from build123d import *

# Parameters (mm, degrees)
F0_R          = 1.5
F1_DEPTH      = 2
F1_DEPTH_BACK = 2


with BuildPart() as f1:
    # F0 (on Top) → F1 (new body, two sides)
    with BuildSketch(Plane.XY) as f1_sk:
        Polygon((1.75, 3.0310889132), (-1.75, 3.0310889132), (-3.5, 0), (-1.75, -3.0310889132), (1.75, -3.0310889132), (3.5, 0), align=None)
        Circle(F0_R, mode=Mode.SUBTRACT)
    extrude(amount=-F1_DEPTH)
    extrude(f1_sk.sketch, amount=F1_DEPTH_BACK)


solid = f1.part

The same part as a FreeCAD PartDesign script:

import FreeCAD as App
import Part
import Sketcher
from FreeCAD import Vector
Q = App.Units.Quantity


def add_polygon(sketch, points):
    """Adds a closed chain of lines whose ends are joined by coincident constraints."""
    first, n = sketch.GeometryCount, len(points)
    for a, b in zip(points, points[1:] + points[:1]):
        sketch.addGeometry(Part.LineSegment(App.Vector(*a, 0), App.Vector(*b, 0)), False)
    for i in range(n):
        sketch.addConstraint(Sketcher.Constraint("Coincident", first + i, 2, first + (i + 1) % n, 1))

doc = App.newDocument("Part")
params = doc.addObject("Spreadsheet::Sheet", "Params")
for row, (alias, value) in enumerate([
    ("sketch1_diameter", "3 mm"),
    ("sketch1_width", "3.5 mm"),
    ("pad1_length", "2 mm"),
    ("pad1_length2", "2 mm"),
], start=1):
    params.set(f"A{row}", alias)
    params.set(f"B{row}", "=" + value)
    params.setAlias(f"B{row}", alias)

body = doc.addObject("PartDesign::Body", "Body")

# Sketch on XY plane
sketch1 = doc.addObject("Sketcher::SketchObject", "Sketch")
body.addObject(sketch1)
sketch1.AttachmentSupport = (doc.XY_Plane, [""])
sketch1.MapMode = "FlatFace"
add_polygon(sketch1, [(1.75, 3.031089), (-1.75, 3.031089), (-3.5, 0), (-1.75, -3.031089), (1.75, -3.031089), (3.5, 0)])  # lines 0-5
sketch1.addGeometry(Part.Circle(Vector(0, 0, 0), Vector(0, 0, 1), 1.5), False)  # 6
sketch1.addConstraint([
    Sketcher.Constraint("Horizontal", 0),
    Sketcher.Constraint("Horizontal", 3),
    Sketcher.Constraint("Coincident", 6, 3, -1, 1),
    Sketcher.Constraint("Symmetric", 0, 2, 3, 2, -1, 1),
    Sketcher.Constraint("Symmetric", 1, 2, 4, 2, -1, 1),
    Sketcher.Constraint("PointOnObject", 1, 2, -1),
    Sketcher.Constraint("Parallel", 2, 5),
    Sketcher.Constraint("Vertical", 0, 2, 2, 2),
    Sketcher.Constraint("Diameter", 6, Q("3 mm")),
    Sketcher.Constraint("Angle", 1, Q("-120 deg")),
    Sketcher.Constraint("DistanceX", 0, 2, 0, 1, Q("3.5 mm")),
    Sketcher.Constraint("DistanceX", 1, 2, 4, 2, Q("7 mm")),
])
sketch1.setExpression("Constraints[14]", "Params.sketch1_diameter")
sketch1.setExpression("Constraints[16]", "Params.sketch1_width")
pad1 = doc.addObject("PartDesign::Pad", "Pad")
body.addObject(pad1)
pad1.Profile = sketch1
pad1.Type = "TwoLengths"
pad1.setExpression("Length", "Params.pad1_length")
pad1.setExpression("Length2", "Params.pad1_length2")
pad1.Reversed = True

doc.recompute()
